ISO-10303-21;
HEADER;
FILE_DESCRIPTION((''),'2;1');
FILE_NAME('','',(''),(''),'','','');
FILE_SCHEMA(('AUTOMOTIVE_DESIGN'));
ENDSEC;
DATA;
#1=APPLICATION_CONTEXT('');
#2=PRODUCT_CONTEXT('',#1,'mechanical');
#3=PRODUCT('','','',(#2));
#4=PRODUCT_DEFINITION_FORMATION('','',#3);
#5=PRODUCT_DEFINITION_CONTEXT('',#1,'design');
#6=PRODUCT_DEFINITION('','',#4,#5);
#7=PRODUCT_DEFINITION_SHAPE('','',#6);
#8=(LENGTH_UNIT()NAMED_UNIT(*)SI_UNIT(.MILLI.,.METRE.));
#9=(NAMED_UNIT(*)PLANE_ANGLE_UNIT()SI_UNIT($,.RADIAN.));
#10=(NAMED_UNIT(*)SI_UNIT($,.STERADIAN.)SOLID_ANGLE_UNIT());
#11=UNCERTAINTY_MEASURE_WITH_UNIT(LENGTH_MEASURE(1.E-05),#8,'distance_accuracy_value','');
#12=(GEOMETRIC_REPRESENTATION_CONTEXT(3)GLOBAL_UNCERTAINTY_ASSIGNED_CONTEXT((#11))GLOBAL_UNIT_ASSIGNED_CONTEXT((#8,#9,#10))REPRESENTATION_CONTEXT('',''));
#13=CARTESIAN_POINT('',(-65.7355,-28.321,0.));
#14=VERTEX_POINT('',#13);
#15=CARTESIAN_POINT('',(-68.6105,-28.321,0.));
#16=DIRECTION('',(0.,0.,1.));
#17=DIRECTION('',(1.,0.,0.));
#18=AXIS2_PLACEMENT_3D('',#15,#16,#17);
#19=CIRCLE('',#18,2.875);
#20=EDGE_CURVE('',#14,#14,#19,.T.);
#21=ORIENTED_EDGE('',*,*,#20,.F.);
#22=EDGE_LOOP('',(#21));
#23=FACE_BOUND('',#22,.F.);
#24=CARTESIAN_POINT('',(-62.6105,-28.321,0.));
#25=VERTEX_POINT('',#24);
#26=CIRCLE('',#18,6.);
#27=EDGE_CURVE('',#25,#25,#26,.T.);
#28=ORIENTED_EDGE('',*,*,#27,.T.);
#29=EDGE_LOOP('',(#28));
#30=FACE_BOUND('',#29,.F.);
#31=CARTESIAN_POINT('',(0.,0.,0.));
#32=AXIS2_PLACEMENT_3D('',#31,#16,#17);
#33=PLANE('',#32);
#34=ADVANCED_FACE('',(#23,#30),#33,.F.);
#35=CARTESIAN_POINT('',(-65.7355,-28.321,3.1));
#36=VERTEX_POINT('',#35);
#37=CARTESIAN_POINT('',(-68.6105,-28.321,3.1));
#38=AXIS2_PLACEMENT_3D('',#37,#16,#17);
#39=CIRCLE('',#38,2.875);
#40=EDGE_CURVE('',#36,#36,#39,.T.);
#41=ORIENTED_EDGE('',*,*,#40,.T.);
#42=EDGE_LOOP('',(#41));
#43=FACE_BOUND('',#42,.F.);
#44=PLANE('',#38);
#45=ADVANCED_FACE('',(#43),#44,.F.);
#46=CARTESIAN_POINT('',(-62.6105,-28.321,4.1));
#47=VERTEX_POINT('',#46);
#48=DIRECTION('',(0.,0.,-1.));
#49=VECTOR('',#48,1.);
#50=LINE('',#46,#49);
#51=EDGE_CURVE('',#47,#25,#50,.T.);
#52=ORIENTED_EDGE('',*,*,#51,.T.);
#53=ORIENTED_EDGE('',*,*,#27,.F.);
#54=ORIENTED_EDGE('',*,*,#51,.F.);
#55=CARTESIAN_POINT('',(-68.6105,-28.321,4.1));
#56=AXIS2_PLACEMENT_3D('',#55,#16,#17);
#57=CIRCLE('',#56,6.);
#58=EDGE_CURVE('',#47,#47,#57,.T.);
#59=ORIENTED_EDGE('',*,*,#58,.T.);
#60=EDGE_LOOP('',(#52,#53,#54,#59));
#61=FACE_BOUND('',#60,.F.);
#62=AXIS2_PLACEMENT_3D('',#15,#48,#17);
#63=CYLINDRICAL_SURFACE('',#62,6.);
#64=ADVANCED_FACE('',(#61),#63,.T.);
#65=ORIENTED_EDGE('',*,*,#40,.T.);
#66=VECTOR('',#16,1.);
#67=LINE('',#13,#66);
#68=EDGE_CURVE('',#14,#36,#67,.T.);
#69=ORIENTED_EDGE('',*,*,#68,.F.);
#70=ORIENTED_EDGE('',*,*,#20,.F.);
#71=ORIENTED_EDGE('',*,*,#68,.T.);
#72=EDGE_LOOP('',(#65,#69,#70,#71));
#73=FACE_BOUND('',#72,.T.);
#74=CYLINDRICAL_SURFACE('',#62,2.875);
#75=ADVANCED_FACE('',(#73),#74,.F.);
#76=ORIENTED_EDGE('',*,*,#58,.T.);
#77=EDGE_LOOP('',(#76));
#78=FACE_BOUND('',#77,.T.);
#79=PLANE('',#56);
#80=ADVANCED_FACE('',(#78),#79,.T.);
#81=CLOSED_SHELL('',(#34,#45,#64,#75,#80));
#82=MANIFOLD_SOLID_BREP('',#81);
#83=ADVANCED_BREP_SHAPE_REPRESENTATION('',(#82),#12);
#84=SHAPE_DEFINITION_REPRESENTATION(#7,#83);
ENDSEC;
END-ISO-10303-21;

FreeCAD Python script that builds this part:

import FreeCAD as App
import Part
import Sketcher

doc = App.newDocument("Part")
body = doc.addObject("PartDesign::Body", "Body")

# Sketch on XY plane
sketch1 = body.newObject("Sketcher::SketchObject", "Sketch")
sketch1.AttachmentSupport = (doc.getObject("XY_Plane"), [""])
sketch1.MapMode = "FlatFace"
sketch1.addGeometry(Part.Circle(App.Vector(-68.6, -28.3, 0), App.Vector(0, 0, 1), 6), False)
sketch1.addGeometry(Part.Circle(App.Vector(-68.6, -28.3, 0), App.Vector(0, 0, 1), 2.9), False)
sketch1.addConstraint(Sketcher.Constraint("Coincident", 1, 3, 0, 3))
sketch1.addConstraint(Sketcher.Constraint("Diameter", 0, 12.0))
sketch1.addConstraint(Sketcher.Constraint("Diameter", 1, 5.75))
sketch1.addConstraint(Sketcher.Constraint("DistanceY", 0, 3, -1, 1, 28.321))
sketch1.addConstraint(Sketcher.Constraint("DistanceX", 0, 3, -1, 1, 68.6105))
pad1 = body.newObject("PartDesign::Pad", "Pad")
pad1.Profile = sketch1
pad1.Length = 3.1

# Sketch on XY plane
sketch2 = body.newObject("Sketcher::SketchObject", "Sketch001")
sketch2.AttachmentSupport = (doc.getObject("XY_Plane"), [""])
sketch2.MapMode = "FlatFace"
sketch2.AttachmentOffset = App.Placement(App.Vector(0, 0, 3.1), App.Rotation())
sketch2.addGeometry(Part.Circle(App.Vector(-69, -28, 0), App.Vector(0, 0, 1), 6), False)
sketch2.addConstraint(Sketcher.Constraint("Diameter", 0, 12.0))
sketch2.addConstraint(Sketcher.Constraint("DistanceY", 0, 3, -1, 1, 28.321))
sketch2.addConstraint(Sketcher.Constraint("DistanceX", 0, 3, -1, 1, 68.6105))
pad2 = body.newObject("PartDesign::Pad", "Pad001")
pad2.Profile = sketch2
pad2.Length = 1

doc.recompute()
